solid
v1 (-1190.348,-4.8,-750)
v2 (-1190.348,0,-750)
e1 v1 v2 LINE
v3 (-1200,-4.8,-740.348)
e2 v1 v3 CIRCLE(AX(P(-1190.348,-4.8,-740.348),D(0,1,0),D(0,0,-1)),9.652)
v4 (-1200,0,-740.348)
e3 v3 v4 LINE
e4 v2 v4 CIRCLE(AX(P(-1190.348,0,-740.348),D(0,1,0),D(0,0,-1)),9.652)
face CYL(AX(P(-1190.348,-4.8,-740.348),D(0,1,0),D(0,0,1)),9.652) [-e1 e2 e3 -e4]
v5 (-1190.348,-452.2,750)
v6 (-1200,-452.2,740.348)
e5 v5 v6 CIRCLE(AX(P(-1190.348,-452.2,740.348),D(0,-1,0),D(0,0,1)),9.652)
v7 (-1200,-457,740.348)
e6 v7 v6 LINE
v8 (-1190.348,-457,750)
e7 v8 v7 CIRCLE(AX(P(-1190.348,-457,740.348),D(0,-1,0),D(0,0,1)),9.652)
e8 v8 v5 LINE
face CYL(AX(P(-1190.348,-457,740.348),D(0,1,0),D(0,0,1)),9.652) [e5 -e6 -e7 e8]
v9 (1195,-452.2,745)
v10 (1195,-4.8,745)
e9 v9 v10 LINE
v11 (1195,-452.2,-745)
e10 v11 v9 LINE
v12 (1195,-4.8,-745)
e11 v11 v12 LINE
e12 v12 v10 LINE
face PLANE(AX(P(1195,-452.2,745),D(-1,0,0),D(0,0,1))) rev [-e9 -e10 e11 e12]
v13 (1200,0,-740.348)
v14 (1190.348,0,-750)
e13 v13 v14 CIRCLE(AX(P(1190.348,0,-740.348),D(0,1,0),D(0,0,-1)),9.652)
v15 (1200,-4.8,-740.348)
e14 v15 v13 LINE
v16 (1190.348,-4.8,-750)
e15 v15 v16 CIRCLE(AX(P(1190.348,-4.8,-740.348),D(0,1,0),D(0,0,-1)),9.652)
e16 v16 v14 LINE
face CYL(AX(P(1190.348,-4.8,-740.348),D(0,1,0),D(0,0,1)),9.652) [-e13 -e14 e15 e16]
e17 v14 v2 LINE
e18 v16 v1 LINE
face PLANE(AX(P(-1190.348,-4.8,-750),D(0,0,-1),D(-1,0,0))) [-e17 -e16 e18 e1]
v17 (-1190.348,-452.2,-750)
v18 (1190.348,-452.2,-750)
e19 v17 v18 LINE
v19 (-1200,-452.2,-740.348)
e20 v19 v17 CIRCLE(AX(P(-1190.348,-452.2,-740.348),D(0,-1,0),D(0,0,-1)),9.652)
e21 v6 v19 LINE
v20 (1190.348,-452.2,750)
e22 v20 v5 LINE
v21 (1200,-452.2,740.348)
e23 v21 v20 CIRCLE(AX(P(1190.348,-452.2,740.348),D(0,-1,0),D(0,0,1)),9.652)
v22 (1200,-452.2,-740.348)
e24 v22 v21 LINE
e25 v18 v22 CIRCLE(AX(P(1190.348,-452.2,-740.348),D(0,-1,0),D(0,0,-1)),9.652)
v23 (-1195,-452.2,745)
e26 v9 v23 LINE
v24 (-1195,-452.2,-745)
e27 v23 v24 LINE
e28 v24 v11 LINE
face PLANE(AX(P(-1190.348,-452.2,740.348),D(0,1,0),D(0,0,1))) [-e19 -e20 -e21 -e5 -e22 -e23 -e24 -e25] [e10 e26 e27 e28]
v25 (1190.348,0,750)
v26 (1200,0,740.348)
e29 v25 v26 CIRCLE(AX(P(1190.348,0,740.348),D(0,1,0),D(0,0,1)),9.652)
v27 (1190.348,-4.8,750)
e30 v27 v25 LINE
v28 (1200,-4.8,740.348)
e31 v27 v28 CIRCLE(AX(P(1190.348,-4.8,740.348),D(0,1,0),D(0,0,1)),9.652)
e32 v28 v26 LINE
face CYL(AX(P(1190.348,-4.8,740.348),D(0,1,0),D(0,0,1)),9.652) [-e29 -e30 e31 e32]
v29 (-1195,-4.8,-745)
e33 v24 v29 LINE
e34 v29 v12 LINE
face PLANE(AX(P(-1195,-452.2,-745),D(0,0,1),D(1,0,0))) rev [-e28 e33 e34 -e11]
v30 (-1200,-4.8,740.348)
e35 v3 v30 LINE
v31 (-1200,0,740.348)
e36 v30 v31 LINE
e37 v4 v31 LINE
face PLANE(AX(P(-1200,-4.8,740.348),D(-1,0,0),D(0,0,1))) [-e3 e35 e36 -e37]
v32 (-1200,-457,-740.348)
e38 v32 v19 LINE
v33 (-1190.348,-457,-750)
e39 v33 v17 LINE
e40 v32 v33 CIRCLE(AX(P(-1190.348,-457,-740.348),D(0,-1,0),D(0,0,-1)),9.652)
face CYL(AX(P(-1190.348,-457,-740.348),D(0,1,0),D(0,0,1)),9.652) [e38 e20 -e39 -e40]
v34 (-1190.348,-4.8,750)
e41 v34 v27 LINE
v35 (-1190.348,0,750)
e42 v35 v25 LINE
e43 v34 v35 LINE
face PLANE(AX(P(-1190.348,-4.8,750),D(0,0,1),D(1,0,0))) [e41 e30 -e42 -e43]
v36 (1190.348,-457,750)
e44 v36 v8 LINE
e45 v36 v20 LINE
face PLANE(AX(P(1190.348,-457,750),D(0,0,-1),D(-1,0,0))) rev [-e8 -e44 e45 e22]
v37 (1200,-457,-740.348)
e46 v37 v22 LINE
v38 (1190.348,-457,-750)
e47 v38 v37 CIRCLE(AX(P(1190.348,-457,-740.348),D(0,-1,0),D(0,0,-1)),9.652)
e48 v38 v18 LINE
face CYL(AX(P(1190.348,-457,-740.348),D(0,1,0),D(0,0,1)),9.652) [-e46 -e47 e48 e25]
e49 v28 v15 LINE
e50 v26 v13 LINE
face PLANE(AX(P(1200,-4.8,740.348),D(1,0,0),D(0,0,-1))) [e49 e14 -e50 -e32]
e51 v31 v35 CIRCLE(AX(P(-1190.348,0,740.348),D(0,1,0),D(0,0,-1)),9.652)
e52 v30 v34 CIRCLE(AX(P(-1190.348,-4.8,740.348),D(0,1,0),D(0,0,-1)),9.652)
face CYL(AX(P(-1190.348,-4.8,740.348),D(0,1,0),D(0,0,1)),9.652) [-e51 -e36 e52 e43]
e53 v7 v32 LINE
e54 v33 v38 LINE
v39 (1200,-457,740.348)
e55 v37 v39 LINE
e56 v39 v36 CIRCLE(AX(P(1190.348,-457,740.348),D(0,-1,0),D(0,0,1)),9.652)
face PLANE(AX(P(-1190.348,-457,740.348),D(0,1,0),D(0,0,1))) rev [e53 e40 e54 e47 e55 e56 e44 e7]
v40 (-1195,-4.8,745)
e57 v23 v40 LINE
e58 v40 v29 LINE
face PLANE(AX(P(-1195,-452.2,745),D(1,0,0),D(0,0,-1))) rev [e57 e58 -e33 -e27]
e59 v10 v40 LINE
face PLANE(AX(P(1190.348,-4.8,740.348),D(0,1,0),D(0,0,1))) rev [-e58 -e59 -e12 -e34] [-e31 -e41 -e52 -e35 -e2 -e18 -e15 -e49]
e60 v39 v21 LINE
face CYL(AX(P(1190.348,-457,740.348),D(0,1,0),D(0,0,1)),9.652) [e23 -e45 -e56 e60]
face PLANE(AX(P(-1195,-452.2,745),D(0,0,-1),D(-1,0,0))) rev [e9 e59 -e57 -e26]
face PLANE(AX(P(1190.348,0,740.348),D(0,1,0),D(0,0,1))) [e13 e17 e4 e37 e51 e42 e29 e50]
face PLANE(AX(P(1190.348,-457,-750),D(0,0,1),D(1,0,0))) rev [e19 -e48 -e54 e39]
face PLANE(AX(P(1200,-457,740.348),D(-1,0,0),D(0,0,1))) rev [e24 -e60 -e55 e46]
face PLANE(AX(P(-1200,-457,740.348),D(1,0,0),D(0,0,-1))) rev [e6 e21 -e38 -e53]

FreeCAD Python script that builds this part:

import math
import FreeCAD as App
import Part
import Sketcher
Q = App.Units.Quantity

doc = App.newDocument("Part")
body = doc.addObject("PartDesign::Body", "Body")

# Sketch on XZ plane
sketch1 = body.newObject("Sketcher::SketchObject", "Sketch")
sketch1.AttachmentSupport = (doc.getObject("XZ_Plane"), [""])
sketch1.MapMode = "FlatFace"
sketch1.addGeometry([
    Part.LineSegment(App.Vector(-1190, 750, 0), App.Vector(1190, 750, 0)),  # 0
    Part.ArcOfCircle(Part.Circle(App.Vector(1190, 740, 0), App.Vector(0, 0, 1), 10), math.radians(0), math.radians(90)),  # 1
    Part.LineSegment(App.Vector(1200, 740, 0), App.Vector(1200, -740, 0)),  # 2
    Part.ArcOfCircle(Part.Circle(App.Vector(1190, -740, 0), App.Vector(0, 0, 1), 10), math.radians(-90), math.radians(0)),  # 3
    Part.LineSegment(App.Vector(1190, -750, 0), App.Vector(-1190, -750, 0)),  # 4
    Part.ArcOfCircle(Part.Circle(App.Vector(-1190, -740, 0), App.Vector(0, 0, 1), 10), math.radians(180), math.radians(270)),  # 5
    Part.LineSegment(App.Vector(-1200, -740, 0), App.Vector(-1200, 740, 0)),  # 6
    Part.ArcOfCircle(Part.Circle(App.Vector(-1190, 740, 0), App.Vector(0, 0, 1), 10), math.radians(90), math.radians(180)),  # 7
], False)
sketch1.addConstraint([
    Sketcher.Constraint("Tangent", 0, 2, 1, 2),
    Sketcher.Constraint("Tangent", 1, 1, 2, 1),
    Sketcher.Constraint("Tangent", 2, 2, 3, 2),
    Sketcher.Constraint("Tangent", 3, 1, 4, 1),
    Sketcher.Constraint("Tangent", 4, 2, 5, 2),
    Sketcher.Constraint("Tangent", 5, 1, 6, 1),
    Sketcher.Constraint("Tangent", 6, 2, 7, 2),
    Sketcher.Constraint("Tangent", 7, 1, 0, 1),
    Sketcher.Constraint("Horizontal", 0),
    Sketcher.Constraint("Vertical", 2),
    Sketcher.Constraint("Horizontal", 4),
    Sketcher.Constraint("Vertical", 6),
    Sketcher.Constraint("Equal", 1, 3),
    Sketcher.Constraint("Equal", 3, 5),
    Sketcher.Constraint("Equal", 5, 7),
    Sketcher.Constraint("Symmetric", 1, 3, 5, 3, -1, 1),
    Sketcher.Constraint("DistanceY", -1, 1, 0, 2, Q("750 mm")),
    Sketcher.Constraint("DistanceX", -1, 1, 1, 1, Q("1200 mm")),
    Sketcher.Constraint("Radius", 1, Q("9.652 mm")),
])
pad1 = body.newObject("PartDesign::Pad", "Pad")
pad1.Profile = sketch1
pad1.Length = 4.8

# Sketch on XZ plane
sketch2 = body.newObject("Sketcher::SketchObject", "Sketch001")
sketch2.AttachmentSupport = (doc.getObject("XZ_Plane"), [""])
sketch2.MapMode = "FlatFace"
sketch2.AttachmentOffset = App.Placement(App.Vector(0, 0, 4.8), App.Rotation())
sketch2.addGeometry([
    Part.LineSegment(App.Vector(-1195, 745, 0), App.Vector(-1195, -745, 0)),
    Part.LineSegment(App.Vector(-1195, -745, 0), App.Vector(1195, -745, 0)),
    Part.LineSegment(App.Vector(1195, -745, 0), App.Vector(1195, 745, 0)),
    Part.LineSegment(App.Vector(1195, 745, 0), App.Vector(-1195, 745, 0)),
], False)
sketch2.addConstraint([
    Sketcher.Constraint("Coincident", 0, 2, 1, 1),
    Sketcher.Constraint("Coincident", 1, 2, 2, 1),
    Sketcher.Constraint("Coincident", 2, 2, 3, 1),
    Sketcher.Constraint("Coincident", 3, 2, 0, 1),
    Sketcher.Constraint("Vertical", 0),
    Sketcher.Constraint("Horizontal", 1),
    Sketcher.Constraint("Vertical", 2),
    Sketcher.Constraint("Horizontal", 3),
    Sketcher.Constraint("Symmetric", 0, 2, 2, 2, -1, 1),
    Sketcher.Constraint("DistanceX", 1, 1, 1, 2, Q("2390 mm")),
    Sketcher.Constraint("DistanceY", 0, 2, 0, 1, Q("1490 mm")),
])
pad2 = body.newObject("PartDesign::Pad", "Pad001")
pad2.Profile = sketch2
pad2.Length = 447.4

# Sketch on XZ plane
sketch3 = body.newObject("Sketcher::SketchObject", "Sketch002")
sketch3.AttachmentSupport = (doc.getObject("XZ_Plane"), [""])
sketch3.MapMode = "FlatFace"
sketch3.AttachmentOffset = App.Placement(App.Vector(0, 0, 452.2), App.Rotation())
sketch3.addGeometry([
    Part.LineSegment(App.Vector(1190, 750, 0), App.Vector(-1190, 750, 0)),  # 0
    Part.ArcOfCircle(Part.Circle(App.Vector(-1190, 740, 0), App.Vector(0, 0, 1), 10), math.radians(90), math.radians(180)),  # 1
    Part.LineSegment(App.Vector(-1200, 740, 0), App.Vector(-1200, -740, 0)),  # 2
    Part.ArcOfCircle(Part.Circle(App.Vector(-1190, -740, 0), App.Vector(0, 0, 1), 10), math.radians(180), math.radians(270)),  # 3
    Part.LineSegment(App.Vector(-1190, -750, 0), App.Vector(1190, -750, 0)),  # 4
    Part.ArcOfCircle(Part.Circle(App.Vector(1190, -740, 0), App.Vector(0, 0, 1), 10), math.radians(-90), math.radians(0)),  # 5
    Part.LineSegment(App.Vector(1200, -740, 0), App.Vector(1200, 740, 0)),  # 6
    Part.ArcOfCircle(Part.Circle(App.Vector(1190, 740, 0), App.Vector(0, 0, 1), 10), math.radians(0), math.radians(90)),  # 7
], False)
sketch3.addConstraint([
    Sketcher.Constraint("Tangent", 0, 2, 1, 1),
    Sketcher.Constraint("Tangent", 1, 2, 2, 1),
    Sketcher.Constraint("Tangent", 2, 2, 3, 1),
    Sketcher.Constraint("Tangent", 3, 2, 4, 1),
    Sketcher.Constraint("Tangent", 4, 2, 5, 1),
    Sketcher.Constraint("Tangent", 5, 2, 6, 1),
    Sketcher.Constraint("Tangent", 6, 2, 7, 1),
    Sketcher.Constraint("Tangent", 7, 2, 0, 1),
    Sketcher.Constraint("Horizontal", 0),
    Sketcher.Constraint("Vertical", 2),
    Sketcher.Constraint("Horizontal", 4),
    Sketcher.Constraint("Vertical", 6),
    Sketcher.Constraint("Equal", 1, 3),
    Sketcher.Constraint("Equal", 3, 5),
    Sketcher.Constraint("Equal", 5, 7),
    Sketcher.Constraint("Symmetric", 1, 3, 5, 3, -1, 1),
    Sketcher.Constraint("DistanceY", -1, 1, 0, 2, Q("750 mm")),
    Sketcher.Constraint("DistanceX", 1, 2, -1, 1, Q("1200 mm")),
    Sketcher.Constraint("Radius", 1, Q("9.652 mm")),
])
pad3 = body.newObject("PartDesign::Pad", "Pad002")
pad3.Profile = sketch3
pad3.Length = 4.8

doc.recompute()
